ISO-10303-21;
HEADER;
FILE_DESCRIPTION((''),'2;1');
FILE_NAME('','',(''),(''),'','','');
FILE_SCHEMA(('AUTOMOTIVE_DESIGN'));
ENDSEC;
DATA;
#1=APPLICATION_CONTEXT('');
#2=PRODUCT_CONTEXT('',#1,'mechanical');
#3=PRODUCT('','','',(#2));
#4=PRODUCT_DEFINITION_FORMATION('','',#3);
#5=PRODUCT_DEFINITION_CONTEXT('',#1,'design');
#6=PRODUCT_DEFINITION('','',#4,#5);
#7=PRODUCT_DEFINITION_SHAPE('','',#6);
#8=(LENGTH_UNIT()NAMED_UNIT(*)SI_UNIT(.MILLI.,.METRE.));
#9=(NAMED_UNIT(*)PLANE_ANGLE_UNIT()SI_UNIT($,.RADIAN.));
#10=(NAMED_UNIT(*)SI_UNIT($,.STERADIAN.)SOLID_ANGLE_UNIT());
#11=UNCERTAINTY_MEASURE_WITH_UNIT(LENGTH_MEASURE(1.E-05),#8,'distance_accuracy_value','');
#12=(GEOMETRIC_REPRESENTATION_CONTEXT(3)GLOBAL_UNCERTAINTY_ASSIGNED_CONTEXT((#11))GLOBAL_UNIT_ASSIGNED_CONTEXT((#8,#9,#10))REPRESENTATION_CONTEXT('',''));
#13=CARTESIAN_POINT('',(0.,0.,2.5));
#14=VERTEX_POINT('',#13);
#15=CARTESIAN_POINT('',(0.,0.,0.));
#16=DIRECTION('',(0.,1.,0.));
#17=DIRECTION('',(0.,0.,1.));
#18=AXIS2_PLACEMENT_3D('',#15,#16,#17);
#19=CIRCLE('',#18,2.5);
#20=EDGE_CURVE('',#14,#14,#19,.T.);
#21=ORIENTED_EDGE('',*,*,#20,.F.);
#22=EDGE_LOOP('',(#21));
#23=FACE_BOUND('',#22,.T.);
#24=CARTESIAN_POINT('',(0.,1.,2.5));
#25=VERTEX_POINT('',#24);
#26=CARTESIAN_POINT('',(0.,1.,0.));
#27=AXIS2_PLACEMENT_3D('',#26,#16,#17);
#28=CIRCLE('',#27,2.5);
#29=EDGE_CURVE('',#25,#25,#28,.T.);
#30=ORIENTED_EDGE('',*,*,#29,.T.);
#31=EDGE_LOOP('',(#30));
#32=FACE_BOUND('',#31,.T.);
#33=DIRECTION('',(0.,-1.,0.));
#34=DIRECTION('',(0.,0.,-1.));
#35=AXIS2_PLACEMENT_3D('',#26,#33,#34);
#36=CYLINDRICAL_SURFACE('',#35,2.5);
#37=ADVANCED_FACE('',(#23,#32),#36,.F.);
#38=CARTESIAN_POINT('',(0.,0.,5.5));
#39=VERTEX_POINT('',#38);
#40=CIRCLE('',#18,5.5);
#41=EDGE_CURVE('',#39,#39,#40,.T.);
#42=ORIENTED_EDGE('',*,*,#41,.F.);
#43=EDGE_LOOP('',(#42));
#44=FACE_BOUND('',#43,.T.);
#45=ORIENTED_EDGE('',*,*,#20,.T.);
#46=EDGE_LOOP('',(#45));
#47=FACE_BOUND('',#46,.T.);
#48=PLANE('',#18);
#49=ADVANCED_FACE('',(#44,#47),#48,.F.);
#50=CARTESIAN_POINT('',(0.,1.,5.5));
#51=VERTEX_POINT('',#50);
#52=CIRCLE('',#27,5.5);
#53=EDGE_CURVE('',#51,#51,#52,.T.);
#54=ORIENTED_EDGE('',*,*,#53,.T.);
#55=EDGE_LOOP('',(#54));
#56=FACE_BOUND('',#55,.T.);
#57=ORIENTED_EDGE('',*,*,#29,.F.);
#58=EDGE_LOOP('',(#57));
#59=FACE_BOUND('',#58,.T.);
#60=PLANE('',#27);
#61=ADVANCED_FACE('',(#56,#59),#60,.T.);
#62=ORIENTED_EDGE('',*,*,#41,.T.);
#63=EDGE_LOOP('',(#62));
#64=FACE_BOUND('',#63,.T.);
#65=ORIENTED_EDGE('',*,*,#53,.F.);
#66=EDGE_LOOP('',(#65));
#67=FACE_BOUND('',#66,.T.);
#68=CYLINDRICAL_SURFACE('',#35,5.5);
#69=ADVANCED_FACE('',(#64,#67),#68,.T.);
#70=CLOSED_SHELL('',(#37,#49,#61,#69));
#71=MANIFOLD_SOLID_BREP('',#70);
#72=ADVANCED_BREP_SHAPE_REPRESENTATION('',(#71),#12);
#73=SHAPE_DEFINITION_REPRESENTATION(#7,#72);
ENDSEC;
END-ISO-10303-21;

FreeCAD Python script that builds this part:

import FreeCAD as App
import Part
import Sketcher

V = App.Vector
Q = App.Units.Quantity

doc = App.newDocument("Part")
params = doc.addObject("Spreadsheet::Sheet", "Params")
for row, (alias, value) in enumerate([
    ("sketch1_diameter", "11 mm"),
    ("sketch1_diameter2", "5 mm"),
    ("pad1_length", "1 mm"),
], start=1):
    params.set(f"A{row}", alias)
    params.set(f"B{row}", "=" + value)
    params.setAlias(f"B{row}", alias)

body = doc.addObject("PartDesign::Body", "Body")

sketch1 = body.newObject("Sketcher::SketchObject", "Sketch")
sketch1.AttachmentSupport = (doc.getObject("XZ_Plane"), [""])
sketch1.MapMode = "FlatFace"
sketch1.addGeometry(Part.Circle(V(0, 0, 0), V(0, 0, 1), 5.5), False)
sketch1.addGeometry(Part.Circle(V(0, 0, 0), V(0, 0, 1), 2.5), False)
sketch1.addConstraint(Sketcher.Constraint("Coincident", 0, 3, -1, 1))
sketch1.addConstraint(Sketcher.Constraint("Coincident", 1, 3, -1, 1))
sketch1.addConstraint(Sketcher.Constraint("Diameter", 0, Q("11 mm")))
sketch1.addConstraint(Sketcher.Constraint("Diameter", 1, Q("5 mm")))
sketch1.setExpression("Constraints[2]", "Params.sketch1_diameter")
sketch1.setExpression("Constraints[3]", "Params.sketch1_diameter2")
pad1 = body.newObject("PartDesign::Pad", "Pad")
pad1.Profile = sketch1
pad1.setExpression("Length", "Params.pad1_length")
pad1.Reversed = True

doc.recompute()
